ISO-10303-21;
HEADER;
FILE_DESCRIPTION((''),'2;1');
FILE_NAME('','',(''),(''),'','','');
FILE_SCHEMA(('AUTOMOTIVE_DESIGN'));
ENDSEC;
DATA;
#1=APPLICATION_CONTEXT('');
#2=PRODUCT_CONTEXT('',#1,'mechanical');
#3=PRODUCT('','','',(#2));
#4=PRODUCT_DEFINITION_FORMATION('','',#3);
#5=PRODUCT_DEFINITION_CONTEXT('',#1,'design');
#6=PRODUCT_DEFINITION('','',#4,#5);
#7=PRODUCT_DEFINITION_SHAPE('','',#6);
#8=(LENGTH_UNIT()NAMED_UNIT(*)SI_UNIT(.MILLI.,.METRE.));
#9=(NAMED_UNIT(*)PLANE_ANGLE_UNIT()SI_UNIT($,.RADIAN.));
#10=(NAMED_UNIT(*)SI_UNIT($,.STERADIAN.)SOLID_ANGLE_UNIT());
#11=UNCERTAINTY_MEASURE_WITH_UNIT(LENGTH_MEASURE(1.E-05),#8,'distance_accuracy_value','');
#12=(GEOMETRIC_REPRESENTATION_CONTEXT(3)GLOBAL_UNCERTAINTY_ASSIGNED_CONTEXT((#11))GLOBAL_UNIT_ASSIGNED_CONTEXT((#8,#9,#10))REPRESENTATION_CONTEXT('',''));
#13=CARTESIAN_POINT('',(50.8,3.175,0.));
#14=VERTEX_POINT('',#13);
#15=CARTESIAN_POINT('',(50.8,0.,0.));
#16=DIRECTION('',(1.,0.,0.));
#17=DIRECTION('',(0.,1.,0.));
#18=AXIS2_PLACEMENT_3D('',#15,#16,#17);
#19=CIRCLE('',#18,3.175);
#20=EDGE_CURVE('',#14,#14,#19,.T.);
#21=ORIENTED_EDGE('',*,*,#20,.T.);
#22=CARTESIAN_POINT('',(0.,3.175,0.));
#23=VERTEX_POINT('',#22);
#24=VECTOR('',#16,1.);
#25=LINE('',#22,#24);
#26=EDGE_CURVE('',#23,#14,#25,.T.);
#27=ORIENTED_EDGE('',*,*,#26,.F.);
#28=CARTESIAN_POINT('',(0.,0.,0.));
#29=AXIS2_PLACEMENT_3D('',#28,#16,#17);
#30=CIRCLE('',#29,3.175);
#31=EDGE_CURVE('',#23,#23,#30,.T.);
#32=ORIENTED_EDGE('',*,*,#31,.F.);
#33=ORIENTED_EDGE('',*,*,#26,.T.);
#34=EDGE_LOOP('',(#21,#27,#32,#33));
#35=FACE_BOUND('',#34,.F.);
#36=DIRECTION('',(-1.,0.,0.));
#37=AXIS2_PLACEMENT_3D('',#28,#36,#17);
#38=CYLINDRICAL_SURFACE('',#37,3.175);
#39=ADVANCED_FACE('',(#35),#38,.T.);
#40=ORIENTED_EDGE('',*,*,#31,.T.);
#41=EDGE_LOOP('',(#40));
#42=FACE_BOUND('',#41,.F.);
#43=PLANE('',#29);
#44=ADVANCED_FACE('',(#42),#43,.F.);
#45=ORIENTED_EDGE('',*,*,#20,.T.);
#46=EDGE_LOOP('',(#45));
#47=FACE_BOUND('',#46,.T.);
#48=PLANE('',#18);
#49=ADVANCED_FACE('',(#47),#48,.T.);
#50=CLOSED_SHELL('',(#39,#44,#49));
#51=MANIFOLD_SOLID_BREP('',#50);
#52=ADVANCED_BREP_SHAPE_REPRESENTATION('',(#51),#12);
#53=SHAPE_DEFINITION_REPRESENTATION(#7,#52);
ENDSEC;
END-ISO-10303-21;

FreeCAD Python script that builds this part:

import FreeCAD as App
import Part
import Sketcher
Q = App.Units.Quantity

doc = App.newDocument("Part")
body = doc.addObject("PartDesign::Body", "Body")

sketch1 = doc.addObject("Sketcher::SketchObject", "Sketch")
body.addObject(sketch1)
sketch1.AttachmentSupport = (doc.YZ_Plane, [""])
sketch1.MapMode = "FlatFace"
sketch1.addGeometry(Part.Circle(App.Vector(0, 0, 0), App.Vector(0, 0, 1), 3.175), False)
sketch1.addConstraint(Sketcher.Constraint("Coincident", 0, 3, -1, 1))
sketch1.addConstraint(Sketcher.Constraint("Diameter", 0, Q("0.25 in")))
pad1 = doc.addObject("PartDesign::Pad", "Pad")
body.addObject(pad1)
pad1.Profile = sketch1
pad1.Length = Q("2 in")

doc.recompute()
